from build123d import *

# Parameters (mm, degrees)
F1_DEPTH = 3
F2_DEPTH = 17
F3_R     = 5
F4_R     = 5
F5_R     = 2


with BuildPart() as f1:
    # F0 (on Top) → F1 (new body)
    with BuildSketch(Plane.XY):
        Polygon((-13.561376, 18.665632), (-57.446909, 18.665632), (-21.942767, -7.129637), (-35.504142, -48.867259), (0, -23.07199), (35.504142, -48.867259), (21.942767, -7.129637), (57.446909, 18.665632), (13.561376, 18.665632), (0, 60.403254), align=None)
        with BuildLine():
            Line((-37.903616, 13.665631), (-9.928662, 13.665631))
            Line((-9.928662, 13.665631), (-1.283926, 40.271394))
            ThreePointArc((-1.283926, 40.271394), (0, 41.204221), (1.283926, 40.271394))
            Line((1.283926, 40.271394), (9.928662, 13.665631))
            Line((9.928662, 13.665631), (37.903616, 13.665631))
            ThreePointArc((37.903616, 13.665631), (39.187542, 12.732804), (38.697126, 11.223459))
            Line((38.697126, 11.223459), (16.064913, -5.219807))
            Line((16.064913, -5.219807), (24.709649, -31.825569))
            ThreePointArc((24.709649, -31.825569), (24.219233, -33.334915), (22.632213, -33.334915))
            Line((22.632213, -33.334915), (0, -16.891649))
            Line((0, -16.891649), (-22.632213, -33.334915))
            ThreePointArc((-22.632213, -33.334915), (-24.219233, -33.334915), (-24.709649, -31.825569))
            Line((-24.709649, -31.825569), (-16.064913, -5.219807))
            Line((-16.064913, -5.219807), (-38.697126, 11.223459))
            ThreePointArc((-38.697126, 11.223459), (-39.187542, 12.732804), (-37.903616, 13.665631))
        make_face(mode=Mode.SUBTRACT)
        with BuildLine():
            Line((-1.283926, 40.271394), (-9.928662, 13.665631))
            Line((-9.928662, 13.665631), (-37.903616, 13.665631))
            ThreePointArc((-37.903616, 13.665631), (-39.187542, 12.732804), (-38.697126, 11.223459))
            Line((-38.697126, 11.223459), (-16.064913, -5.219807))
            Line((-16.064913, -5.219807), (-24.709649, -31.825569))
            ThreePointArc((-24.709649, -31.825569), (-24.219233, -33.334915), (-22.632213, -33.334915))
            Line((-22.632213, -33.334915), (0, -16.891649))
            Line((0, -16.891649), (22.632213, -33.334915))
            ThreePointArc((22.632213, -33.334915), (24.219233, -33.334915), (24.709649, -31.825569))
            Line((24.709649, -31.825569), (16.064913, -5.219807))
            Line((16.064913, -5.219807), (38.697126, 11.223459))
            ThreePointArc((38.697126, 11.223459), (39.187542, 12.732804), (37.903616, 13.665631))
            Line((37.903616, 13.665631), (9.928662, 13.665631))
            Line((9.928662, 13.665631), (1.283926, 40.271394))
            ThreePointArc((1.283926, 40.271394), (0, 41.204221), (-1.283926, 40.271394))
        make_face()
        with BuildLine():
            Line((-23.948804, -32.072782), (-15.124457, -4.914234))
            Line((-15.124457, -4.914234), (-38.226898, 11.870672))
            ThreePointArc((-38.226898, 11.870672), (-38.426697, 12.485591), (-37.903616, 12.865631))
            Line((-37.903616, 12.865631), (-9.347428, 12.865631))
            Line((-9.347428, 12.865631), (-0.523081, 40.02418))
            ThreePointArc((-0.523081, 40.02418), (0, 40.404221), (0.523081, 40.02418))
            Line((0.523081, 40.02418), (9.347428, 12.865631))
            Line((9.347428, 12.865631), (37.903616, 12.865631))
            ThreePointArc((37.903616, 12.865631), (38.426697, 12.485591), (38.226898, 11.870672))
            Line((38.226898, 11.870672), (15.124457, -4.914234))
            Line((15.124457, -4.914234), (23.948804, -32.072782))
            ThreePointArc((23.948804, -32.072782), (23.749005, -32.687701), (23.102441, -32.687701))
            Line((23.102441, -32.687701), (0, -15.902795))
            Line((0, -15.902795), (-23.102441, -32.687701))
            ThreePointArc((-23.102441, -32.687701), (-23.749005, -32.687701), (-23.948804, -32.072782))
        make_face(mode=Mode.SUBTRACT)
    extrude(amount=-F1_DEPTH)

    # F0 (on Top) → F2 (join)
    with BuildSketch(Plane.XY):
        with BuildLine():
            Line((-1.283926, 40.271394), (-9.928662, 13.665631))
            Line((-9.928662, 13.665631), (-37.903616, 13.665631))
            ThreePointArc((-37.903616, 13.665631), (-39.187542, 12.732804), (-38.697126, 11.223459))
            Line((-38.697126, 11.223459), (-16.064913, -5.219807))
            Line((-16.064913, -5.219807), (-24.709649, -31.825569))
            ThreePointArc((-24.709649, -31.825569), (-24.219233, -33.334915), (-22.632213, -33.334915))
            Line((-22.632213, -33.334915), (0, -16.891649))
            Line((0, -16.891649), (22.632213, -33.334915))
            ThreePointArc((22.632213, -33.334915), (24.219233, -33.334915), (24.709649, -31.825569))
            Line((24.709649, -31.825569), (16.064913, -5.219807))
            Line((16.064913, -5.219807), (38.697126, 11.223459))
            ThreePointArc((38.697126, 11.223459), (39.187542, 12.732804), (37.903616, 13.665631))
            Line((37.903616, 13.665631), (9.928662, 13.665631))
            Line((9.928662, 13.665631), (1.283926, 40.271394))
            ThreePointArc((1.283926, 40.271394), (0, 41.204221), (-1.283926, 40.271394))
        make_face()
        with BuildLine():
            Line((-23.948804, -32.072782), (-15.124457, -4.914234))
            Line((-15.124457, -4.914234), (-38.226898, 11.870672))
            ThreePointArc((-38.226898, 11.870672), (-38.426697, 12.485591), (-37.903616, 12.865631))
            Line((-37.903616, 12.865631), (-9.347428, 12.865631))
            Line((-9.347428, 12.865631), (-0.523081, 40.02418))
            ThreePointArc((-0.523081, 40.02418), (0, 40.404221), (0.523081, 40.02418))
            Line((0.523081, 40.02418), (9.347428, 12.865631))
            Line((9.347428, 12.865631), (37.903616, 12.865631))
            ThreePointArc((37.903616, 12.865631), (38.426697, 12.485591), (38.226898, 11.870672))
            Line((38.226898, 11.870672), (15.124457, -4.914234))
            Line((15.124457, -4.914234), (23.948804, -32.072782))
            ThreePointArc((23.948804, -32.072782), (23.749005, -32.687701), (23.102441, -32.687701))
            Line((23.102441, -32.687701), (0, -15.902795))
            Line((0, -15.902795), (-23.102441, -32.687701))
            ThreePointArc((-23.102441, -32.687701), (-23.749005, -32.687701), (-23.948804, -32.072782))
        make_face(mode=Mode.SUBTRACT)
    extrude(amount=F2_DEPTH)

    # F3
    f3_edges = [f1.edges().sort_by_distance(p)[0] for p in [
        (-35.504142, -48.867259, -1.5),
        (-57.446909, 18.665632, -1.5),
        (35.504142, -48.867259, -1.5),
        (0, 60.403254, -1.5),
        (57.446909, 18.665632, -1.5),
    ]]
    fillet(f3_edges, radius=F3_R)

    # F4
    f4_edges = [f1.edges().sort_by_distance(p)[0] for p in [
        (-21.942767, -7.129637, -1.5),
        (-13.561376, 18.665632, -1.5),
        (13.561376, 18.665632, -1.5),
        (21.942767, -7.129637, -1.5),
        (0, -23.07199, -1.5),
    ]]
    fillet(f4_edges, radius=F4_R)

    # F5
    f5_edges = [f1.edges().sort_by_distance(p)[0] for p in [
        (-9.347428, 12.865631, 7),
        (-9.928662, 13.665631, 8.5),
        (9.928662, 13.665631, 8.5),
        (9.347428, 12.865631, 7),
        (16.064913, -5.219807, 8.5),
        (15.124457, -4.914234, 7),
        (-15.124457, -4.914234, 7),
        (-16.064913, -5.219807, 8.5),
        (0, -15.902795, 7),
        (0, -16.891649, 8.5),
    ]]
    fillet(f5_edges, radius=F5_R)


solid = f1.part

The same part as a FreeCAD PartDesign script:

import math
import FreeCAD as App
import Part
import Sketcher

V = App.Vector
Q = App.Units.Quantity


def edges_at(feature, points):
    """Names of the edges that pass closest to the given points."""
    edges = feature.Shape.Edges
    near = lambda p: min(range(len(edges)), key=lambda i: edges[i].distToShape(Part.Vertex(*p))[0])
    return sorted({f"Edge{near(p) + 1}" for p in points})


def add_polygon(sketch, points):
    """Adds a closed chain of lines whose ends are joined by coincident constraints."""
    first, n = sketch.GeometryCount, len(points)
    for a, b in zip(points, points[1:] + points[:1]):
        sketch.addGeometry(Part.LineSegment(App.Vector(*a, 0), App.Vector(*b, 0)), False)
    for i in range(n):
        sketch.addConstraint(Sketcher.Constraint("Coincident", first + i, 2, first + (i + 1) % n, 1))

doc = App.newDocument("Part")
body = doc.addObject("PartDesign::Body", "Body")

# Sketch on XY plane
sketch1 = doc.addObject("Sketcher::SketchObject", "Sketch")
body.addObject(sketch1)
sketch1.AttachmentSupport = (doc.XY_Plane, [""])
sketch1.MapMode = "FlatFace"
add_polygon(sketch1, [(-13.561376, 18.665632), (-57.446909, 18.665632), (-21.942767, -7.129637), (-35.504142, -48.867259), (0, -23.07199), (35.504142, -48.867259), (21.942767, -7.129637), (57.446909, 18.665632), (13.561376, 18.665632), (0, 60.403254)])  # lines 0-9
sketch1.addGeometry(Part.ArcOfCircle(Part.Circle(V(-23.425723, -32.242742, 0), V(0, 0, 1), 0.55), math.radians(161.999963), math.radians(306.000012)), False)  # 10
sketch1.addGeometry(Part.LineSegment(V(-23.948804, -32.072782, 0), V(-15.124457, -4.914234, 0)), False)  # 11
sketch1.addGeometry(Part.LineSegment(V(-15.124457, -4.914234, 0), V(-38.226898, 11.870672, 0)), False)  # 12
sketch1.addGeometry(Part.ArcOfCircle(Part.Circle(V(-37.903616, 12.315631, 0), V(0, 0, 1), 0.55), math.radians(89.999971), math.radians(234.000006)), False)  # 13
sketch1.addGeometry(Part.LineSegment(V(-37.903616, 12.865631, 0), V(-9.347428, 12.865631, 0)), False)  # 14
sketch1.addGeometry(Part.LineSegment(V(-9.347428, 12.865631, 0), V(-0.523081, 40.02418, 0)), False)  # 15
sketch1.addGeometry(Part.ArcOfCircle(Part.Circle(V(0, 39.854221, 0), V(0, 0, 1), 0.55), math.radians(17.999941), math.radians(162.000059)), False)  # 16
sketch1.addGeometry(Part.LineSegment(V(0.523081, 40.02418, 0), V(9.347428, 12.865631, 0)), False)  # 17
sketch1.addGeometry(Part.LineSegment(V(9.347428, 12.865631, 0), V(37.903616, 12.865631, 0)), False)  # 18
sketch1.addGeometry(Part.ArcOfCircle(Part.Circle(V(37.903616, 12.315631, 0), V(0, 0, 1), 0.55), math.radians(-54.000006), math.radians(90.000029)), False)  # 19
sketch1.addGeometry(Part.LineSegment(V(38.226898, 11.870672, 0), V(15.124457, -4.914234, 0)), False)  # 20
sketch1.addGeometry(Part.LineSegment(V(15.124457, -4.914234, 0), V(23.948804, -32.072782, 0)), False)  # 21
sketch1.addGeometry(Part.ArcOfCircle(Part.Circle(V(23.425723, -32.242742, 0), V(0, 0, 1), 0.55), math.radians(-126.000012), math.radians(18.000037)), False)  # 22
sketch1.addGeometry(Part.LineSegment(V(23.102441, -32.687701, 0), V(0, -15.902795, 0)), False)  # 23
sketch1.addGeometry(Part.LineSegment(V(0, -15.902795, 0), V(-23.102441, -32.687701, 0)), False)  # 24
sketch1.addConstraint([
    Sketcher.Constraint("Tangent", 10, 1, 11, 1),
    Sketcher.Constraint("Coincident", 11, 2, 12, 1),
    Sketcher.Constraint("Tangent", 12, 2, 13, 2),
    Sketcher.Constraint("Tangent", 13, 1, 14, 1),
    Sketcher.Constraint("Coincident", 14, 2, 15, 1),
    Sketcher.Constraint("Tangent", 15, 2, 16, 2),
    Sketcher.Constraint("Tangent", 16, 1, 17, 1),
    Sketcher.Constraint("Coincident", 17, 2, 18, 1),
    Sketcher.Constraint("Tangent", 18, 2, 19, 2),
    Sketcher.Constraint("Tangent", 19, 1, 20, 1),
    Sketcher.Constraint("Coincident", 20, 2, 21, 1),
    Sketcher.Constraint("Tangent", 21, 2, 22, 2),
    Sketcher.Constraint("Tangent", 22, 1, 23, 1),
    Sketcher.Constraint("Coincident", 23, 2, 24, 1),
    Sketcher.Constraint("Tangent", 24, 2, 10, 2),
    Sketcher.Constraint("Horizontal", 0),
    Sketcher.Constraint("Horizontal", 7),
    Sketcher.Constraint("Horizontal", 14),
    Sketcher.Constraint("Horizontal", 18),
    Sketcher.Constraint("Equal", 10, 13),
    Sketcher.Constraint("Equal", 13, 16),
    Sketcher.Constraint("Equal", 16, 19),
    Sketcher.Constraint("Equal", 19, 22),
    Sketcher.Constraint("Symmetric", 13, 3, 19, 3, -2),
    Sketcher.Constraint("Symmetric", 10, 3, 22, 3, -2),
    Sketcher.Constraint("Symmetric", 2, 2, 4, 2, -2),
    Sketcher.Constraint("Symmetric", 1, 2, 5, 2, -2),
    Sketcher.Constraint("Symmetric", 0, 2, 6, 2, -2),
    Sketcher.Constraint("Symmetric", 15, 2, 16, 1, -2),
    Sketcher.Constraint("Symmetric", 11, 2, 20, 2, -2),
    Sketcher.Constraint("PointOnObject", 3, 2, -2),
    Sketcher.Constraint("PointOnObject", 8, 2, -2),
    Sketcher.Constraint("PointOnObject", 23, 2, -2),
    Sketcher.Constraint("Parallel", 1, 4),
    Sketcher.Constraint("Parallel", 5, 8),
    Sketcher.Constraint("Parallel", 2, 9),
    Sketcher.Constraint("Parallel", 9, 11),
    Sketcher.Constraint("Parallel", 4, 12),
    Sketcher.Constraint("Parallel", 11, 15),
    Sketcher.Constraint("Parallel", 12, 23),
    Sketcher.Constraint("Equal", 1, 2),
    Sketcher.Constraint("Equal", 2, 3),
    Sketcher.Constraint("Equal", 6, 8),
    Sketcher.Constraint("Equal", 11, 12),
    Sketcher.Constraint("Equal", 12, 15),
    Sketcher.Constraint("Equal", 21, 23),
    Sketcher.Constraint("Angle", 1, Q("-36 deg")),
    Sketcher.Constraint("Angle", 2, Q("-107.999999 deg")),
    Sketcher.Constraint("Radius", 10, 0.55),
    Sketcher.Constraint("DistanceY", 13, 1, 0, 2, 5.800001),
    Sketcher.Constraint("DistanceX", -1, 1, 19, 1, 38.226898),
    Sketcher.Constraint("DistanceY", 22, 1, -1, 1, 32.687701),
    Sketcher.Constraint("DistanceX", 22, 1, 4, 2, 12.401701),
])
pad1 = doc.addObject("PartDesign::Pad", "Pad")
body.addObject(pad1)
pad1.Profile = sketch1
pad1.Length = 3
pad1.Reversed = True

# Sketch on XY plane
sketch2 = doc.addObject("Sketcher::SketchObject", "Sketch001")
body.addObject(sketch2)
sketch2.AttachmentSupport = (doc.XY_Plane, [""])
sketch2.MapMode = "FlatFace"
sketch2.addGeometry([
    Part.LineSegment(V(-1.283926, 40.271394, 0), V(-9.928662, 13.665631, 0)),  # 0
    Part.LineSegment(V(-9.928662, 13.665631, 0), V(-37.903616, 13.665631, 0)),  # 1
    Part.ArcOfCircle(Part.Circle(V(-37.903616, 12.315631, 0), V(0, 0, 1), 1.35), math.radians(89.999997), math.radians(233.999994)),  # 2
    Part.LineSegment(V(-38.697126, 11.223459, 0), V(-16.064913, -5.219807, 0)),  # 3
    Part.LineSegment(V(-16.064913, -5.219807, 0), V(-24.709649, -31.825569, 0)),  # 4
    Part.ArcOfCircle(Part.Circle(V(-23.425723, -32.242742, 0), V(0, 0, 1), 1.35), math.radians(161.999984), math.radians(306.000001)),  # 5
    Part.LineSegment(V(-22.632213, -33.334915, 0), V(0, -16.891649, 0)),  # 6
    Part.LineSegment(V(0, -16.891649, 0), V(22.632213, -33.334915, 0)),  # 7
    Part.ArcOfCircle(Part.Circle(V(23.425723, -32.242742, 0), V(0, 0, 1), 1.35), math.radians(-126.000001), math.radians(18.000016)),  # 8
    Part.LineSegment(V(24.709649, -31.825569, 0), V(16.064913, -5.219807, 0)),  # 9
    Part.LineSegment(V(16.064913, -5.219807, 0), V(38.697126, 11.223459, 0)),  # 10
    Part.ArcOfCircle(Part.Circle(V(37.903616, 12.315631, 0), V(0, 0, 1), 1.35), math.radians(-53.999994), math.radians(90.000003)),  # 11
    Part.LineSegment(V(37.903616, 13.665631, 0), V(9.928662, 13.665631, 0)),  # 12
    Part.LineSegment(V(9.928662, 13.665631, 0), V(1.283926, 40.271394, 0)),  # 13
    Part.ArcOfCircle(Part.Circle(V(0, 39.854221, 0), V(0, 0, 1), 1.35), math.radians(17.999991), math.radians(162.000009)),  # 14
    Part.ArcOfCircle(Part.Circle(V(-23.425723, -32.242742, 0), V(0, 0, 1), 0.55), math.radians(161.999963), math.radians(306.000012)),  # 15
    Part.LineSegment(V(-23.948804, -32.072782, 0), V(-15.124457, -4.914234, 0)),  # 16
    Part.LineSegment(V(-15.124457, -4.914234, 0), V(-38.226898, 11.870672, 0)),  # 17
    Part.ArcOfCircle(Part.Circle(V(-37.903616, 12.315631, 0), V(0, 0, 1), 0.55), math.radians(89.999971), math.radians(234.000006)),  # 18
    Part.LineSegment(V(-37.903616, 12.865631, 0), V(-9.347428, 12.865631, 0)),  # 19
    Part.LineSegment(V(-9.347428, 12.865631, 0), V(-0.523081, 40.02418, 0)),  # 20
    Part.ArcOfCircle(Part.Circle(V(0, 39.854221, 0), V(0, 0, 1), 0.55), math.radians(17.999941), math.radians(162.000059)),  # 21
    Part.LineSegment(V(0.523081, 40.02418, 0), V(9.347428, 12.865631, 0)),  # 22
    Part.LineSegment(V(9.347428, 12.865631, 0), V(37.903616, 12.865631, 0)),  # 23
    Part.ArcOfCircle(Part.Circle(V(37.903616, 12.315631, 0), V(0, 0, 1), 0.55), math.radians(-54.000006), math.radians(90.000029)),  # 24
    Part.LineSegment(V(38.226898, 11.870672, 0), V(15.124457, -4.914234, 0)),  # 25
    Part.LineSegment(V(15.124457, -4.914234, 0), V(23.948804, -32.072782, 0)),  # 26
    Part.ArcOfCircle(Part.Circle(V(23.425723, -32.242742, 0), V(0, 0, 1), 0.55), math.radians(-126.000012), math.radians(18.000037)),  # 27
    Part.LineSegment(V(23.102441, -32.687701, 0), V(0, -15.902795, 0)),  # 28
    Part.LineSegment(V(0, -15.902795, 0), V(-23.102441, -32.687701, 0)),  # 29
], False)
sketch2.addConstraint([
    Sketcher.Constraint("Coincident", 0, 2, 1, 1),
    Sketcher.Constraint("Tangent", 1, 2, 2, 1),
    Sketcher.Constraint("Tangent", 2, 2, 3, 1),
    Sketcher.Constraint("Coincident", 3, 2, 4, 1),
    Sketcher.Constraint("Tangent", 4, 2, 5, 1),
    Sketcher.Constraint("Tangent", 5, 2, 6, 1),
    Sketcher.Constraint("Coincident", 6, 2, 7, 1),
    Sketcher.Constraint("Tangent", 7, 2, 8, 1),
    Sketcher.Constraint("Tangent", 8, 2, 9, 1),
    Sketcher.Constraint("Coincident", 9, 2, 10, 1),
    Sketcher.Constraint("Tangent", 10, 2, 11, 1),
    Sketcher.Constraint("Tangent", 11, 2, 12, 1),
    Sketcher.Constraint("Coincident", 12, 2, 13, 1),
    Sketcher.Constraint("Tangent", 13, 2, 14, 1),
    Sketcher.Constraint("Tangent", 14, 2, 0, 1),
    Sketcher.Constraint("Tangent", 15, 1, 16, 1),
    Sketcher.Constraint("Coincident", 16, 2, 17, 1),
    Sketcher.Constraint("Tangent", 17, 2, 18, 2),
    Sketcher.Constraint("Tangent", 18, 1, 19, 1),
    Sketcher.Constraint("Coincident", 19, 2, 20, 1),
    Sketcher.Constraint("Tangent", 20, 2, 21, 2),
    Sketcher.Constraint("Tangent", 21, 1, 22, 1),
    Sketcher.Constraint("Coincident", 22, 2, 23, 1),
    Sketcher.Constraint("Tangent", 23, 2, 24, 2),
    Sketcher.Constraint("Tangent", 24, 1, 25, 1),
    Sketcher.Constraint("Coincident", 25, 2, 26, 1),
    Sketcher.Constraint("Tangent", 26, 2, 27, 2),
    Sketcher.Constraint("Tangent", 27, 1, 28, 1),
    Sketcher.Constraint("Coincident", 28, 2, 29, 1),
    Sketcher.Constraint("Tangent", 29, 2, 15, 2),
    Sketcher.Constraint("Horizontal", 1),
    Sketcher.Constraint("Horizontal", 12),
    Sketcher.Constraint("Horizontal", 19),
    Sketcher.Constraint("Horizontal", 23),
    Sketcher.Constraint("Coincident", 15, 3, 5, 3),
    Sketcher.Constraint("Coincident", 18, 3, 2, 3),
    Sketcher.Constraint("Coincident", 21, 3, 14, 3),
    Sketcher.Constraint("Coincident", 24, 3, 11, 3),
    Sketcher.Constraint("Coincident", 27, 3, 8, 3),
    Sketcher.Constraint("Equal", 2, 5),
    Sketcher.Constraint("Equal", 5, 8),
    Sketcher.Constraint("Equal", 8, 11),
    Sketcher.Constraint("Equal", 11, 14),
    Sketcher.Constraint("Equal", 15, 18),
    Sketcher.Constraint("Equal", 18, 21),
    Sketcher.Constraint("Equal", 21, 24),
    Sketcher.Constraint("Equal", 24, 27),
    Sketcher.Constraint("Symmetric", 5, 3, 8, 3, -2),
    Sketcher.Constraint("Symmetric", 2, 3, 11, 3, -2),
    Sketcher.Constraint("Symmetric", 3, 2, 9, 2, -2),
    Sketcher.Constraint("Symmetric", 13, 2, 14, 2, -2),
    Sketcher.Constraint("Symmetric", 16, 2, 25, 2, -2),
    Sketcher.Constraint("PointOnObject", 6, 2, -2),
    Sketcher.Constraint("PointOnObject", 28, 2, -2),
    Sketcher.Constraint("Parallel", 0, 4),
    Sketcher.Constraint("Parallel", 3, 7),
    Sketcher.Constraint("Parallel", 4, 16),
    Sketcher.Constraint("Parallel", 7, 17),
    Sketcher.Constraint("Parallel", 16, 20),
    Sketcher.Constraint("Parallel", 13, 22),
    Sketcher.Constraint("Parallel", 17, 28),
    Sketcher.Constraint("Equal", 0, 3),
    Sketcher.Constraint("Equal", 3, 4),
    Sketcher.Constraint("Equal", 4, 6),
    Sketcher.Constraint("Equal", 17, 20),
    Sketcher.Constraint("Equal", 26, 28),
    Sketcher.Constraint("Radius", 2, 1.35),
    Sketcher.Constraint("Radius", 15, 0.55),
    Sketcher.Constraint("DistanceX", -1, 1, 24, 1, 38.226898),
    Sketcher.Constraint("DistanceY", 27, 1, -1, 1, 32.687701),
])
pad2 = doc.addObject("PartDesign::Pad", "Pad001")
body.addObject(pad2)
pad2.Profile = sketch2
pad2.Length = 17
doc.recompute()

fillet = doc.addObject("PartDesign::Fillet", "Fillet")
body.addObject(fillet)
fillet.Base = (pad2, edges_at(pad2, [
    (-35.504, -48.867, -1.5),
    (-57.447, 18.666, -1.5),
    (35.504, -48.867, -1.5),
    (0, 60.403, -1.5),
    (57.447, 18.666, -1.5),
]))
fillet.Radius = 5
doc.recompute()

fillet2 = doc.addObject("PartDesign::Fillet", "Fillet001")
body.addObject(fillet2)
fillet2.Base = (fillet, edges_at(fillet, [
    (-21.943, -7.13, -1.5),
    (-13.561, 18.666, -1.5),
    (13.561, 18.666, -1.5),
    (21.943, -7.13, -1.5),
    (0, -23.072, -1.5),
]))
fillet2.Radius = 5
doc.recompute()

fillet3 = doc.addObject("PartDesign::Fillet", "Fillet002")
body.addObject(fillet3)
fillet3.Base = (fillet2, edges_at(fillet2, [
    (-9.347, 12.866, 7),
    (-9.929, 13.666, 8.5),
    (9.929, 13.666, 8.5),
    (9.347, 12.866, 7),
    (16.065, -5.22, 8.5),
    (15.124, -4.914, 7),
    (-15.124, -4.914, 7),
    (-16.065, -5.22, 8.5),
    (0, -15.903, 7),
    (0, -16.892, 8.5),
]))
fillet3.Radius = 2

doc.recompute()
